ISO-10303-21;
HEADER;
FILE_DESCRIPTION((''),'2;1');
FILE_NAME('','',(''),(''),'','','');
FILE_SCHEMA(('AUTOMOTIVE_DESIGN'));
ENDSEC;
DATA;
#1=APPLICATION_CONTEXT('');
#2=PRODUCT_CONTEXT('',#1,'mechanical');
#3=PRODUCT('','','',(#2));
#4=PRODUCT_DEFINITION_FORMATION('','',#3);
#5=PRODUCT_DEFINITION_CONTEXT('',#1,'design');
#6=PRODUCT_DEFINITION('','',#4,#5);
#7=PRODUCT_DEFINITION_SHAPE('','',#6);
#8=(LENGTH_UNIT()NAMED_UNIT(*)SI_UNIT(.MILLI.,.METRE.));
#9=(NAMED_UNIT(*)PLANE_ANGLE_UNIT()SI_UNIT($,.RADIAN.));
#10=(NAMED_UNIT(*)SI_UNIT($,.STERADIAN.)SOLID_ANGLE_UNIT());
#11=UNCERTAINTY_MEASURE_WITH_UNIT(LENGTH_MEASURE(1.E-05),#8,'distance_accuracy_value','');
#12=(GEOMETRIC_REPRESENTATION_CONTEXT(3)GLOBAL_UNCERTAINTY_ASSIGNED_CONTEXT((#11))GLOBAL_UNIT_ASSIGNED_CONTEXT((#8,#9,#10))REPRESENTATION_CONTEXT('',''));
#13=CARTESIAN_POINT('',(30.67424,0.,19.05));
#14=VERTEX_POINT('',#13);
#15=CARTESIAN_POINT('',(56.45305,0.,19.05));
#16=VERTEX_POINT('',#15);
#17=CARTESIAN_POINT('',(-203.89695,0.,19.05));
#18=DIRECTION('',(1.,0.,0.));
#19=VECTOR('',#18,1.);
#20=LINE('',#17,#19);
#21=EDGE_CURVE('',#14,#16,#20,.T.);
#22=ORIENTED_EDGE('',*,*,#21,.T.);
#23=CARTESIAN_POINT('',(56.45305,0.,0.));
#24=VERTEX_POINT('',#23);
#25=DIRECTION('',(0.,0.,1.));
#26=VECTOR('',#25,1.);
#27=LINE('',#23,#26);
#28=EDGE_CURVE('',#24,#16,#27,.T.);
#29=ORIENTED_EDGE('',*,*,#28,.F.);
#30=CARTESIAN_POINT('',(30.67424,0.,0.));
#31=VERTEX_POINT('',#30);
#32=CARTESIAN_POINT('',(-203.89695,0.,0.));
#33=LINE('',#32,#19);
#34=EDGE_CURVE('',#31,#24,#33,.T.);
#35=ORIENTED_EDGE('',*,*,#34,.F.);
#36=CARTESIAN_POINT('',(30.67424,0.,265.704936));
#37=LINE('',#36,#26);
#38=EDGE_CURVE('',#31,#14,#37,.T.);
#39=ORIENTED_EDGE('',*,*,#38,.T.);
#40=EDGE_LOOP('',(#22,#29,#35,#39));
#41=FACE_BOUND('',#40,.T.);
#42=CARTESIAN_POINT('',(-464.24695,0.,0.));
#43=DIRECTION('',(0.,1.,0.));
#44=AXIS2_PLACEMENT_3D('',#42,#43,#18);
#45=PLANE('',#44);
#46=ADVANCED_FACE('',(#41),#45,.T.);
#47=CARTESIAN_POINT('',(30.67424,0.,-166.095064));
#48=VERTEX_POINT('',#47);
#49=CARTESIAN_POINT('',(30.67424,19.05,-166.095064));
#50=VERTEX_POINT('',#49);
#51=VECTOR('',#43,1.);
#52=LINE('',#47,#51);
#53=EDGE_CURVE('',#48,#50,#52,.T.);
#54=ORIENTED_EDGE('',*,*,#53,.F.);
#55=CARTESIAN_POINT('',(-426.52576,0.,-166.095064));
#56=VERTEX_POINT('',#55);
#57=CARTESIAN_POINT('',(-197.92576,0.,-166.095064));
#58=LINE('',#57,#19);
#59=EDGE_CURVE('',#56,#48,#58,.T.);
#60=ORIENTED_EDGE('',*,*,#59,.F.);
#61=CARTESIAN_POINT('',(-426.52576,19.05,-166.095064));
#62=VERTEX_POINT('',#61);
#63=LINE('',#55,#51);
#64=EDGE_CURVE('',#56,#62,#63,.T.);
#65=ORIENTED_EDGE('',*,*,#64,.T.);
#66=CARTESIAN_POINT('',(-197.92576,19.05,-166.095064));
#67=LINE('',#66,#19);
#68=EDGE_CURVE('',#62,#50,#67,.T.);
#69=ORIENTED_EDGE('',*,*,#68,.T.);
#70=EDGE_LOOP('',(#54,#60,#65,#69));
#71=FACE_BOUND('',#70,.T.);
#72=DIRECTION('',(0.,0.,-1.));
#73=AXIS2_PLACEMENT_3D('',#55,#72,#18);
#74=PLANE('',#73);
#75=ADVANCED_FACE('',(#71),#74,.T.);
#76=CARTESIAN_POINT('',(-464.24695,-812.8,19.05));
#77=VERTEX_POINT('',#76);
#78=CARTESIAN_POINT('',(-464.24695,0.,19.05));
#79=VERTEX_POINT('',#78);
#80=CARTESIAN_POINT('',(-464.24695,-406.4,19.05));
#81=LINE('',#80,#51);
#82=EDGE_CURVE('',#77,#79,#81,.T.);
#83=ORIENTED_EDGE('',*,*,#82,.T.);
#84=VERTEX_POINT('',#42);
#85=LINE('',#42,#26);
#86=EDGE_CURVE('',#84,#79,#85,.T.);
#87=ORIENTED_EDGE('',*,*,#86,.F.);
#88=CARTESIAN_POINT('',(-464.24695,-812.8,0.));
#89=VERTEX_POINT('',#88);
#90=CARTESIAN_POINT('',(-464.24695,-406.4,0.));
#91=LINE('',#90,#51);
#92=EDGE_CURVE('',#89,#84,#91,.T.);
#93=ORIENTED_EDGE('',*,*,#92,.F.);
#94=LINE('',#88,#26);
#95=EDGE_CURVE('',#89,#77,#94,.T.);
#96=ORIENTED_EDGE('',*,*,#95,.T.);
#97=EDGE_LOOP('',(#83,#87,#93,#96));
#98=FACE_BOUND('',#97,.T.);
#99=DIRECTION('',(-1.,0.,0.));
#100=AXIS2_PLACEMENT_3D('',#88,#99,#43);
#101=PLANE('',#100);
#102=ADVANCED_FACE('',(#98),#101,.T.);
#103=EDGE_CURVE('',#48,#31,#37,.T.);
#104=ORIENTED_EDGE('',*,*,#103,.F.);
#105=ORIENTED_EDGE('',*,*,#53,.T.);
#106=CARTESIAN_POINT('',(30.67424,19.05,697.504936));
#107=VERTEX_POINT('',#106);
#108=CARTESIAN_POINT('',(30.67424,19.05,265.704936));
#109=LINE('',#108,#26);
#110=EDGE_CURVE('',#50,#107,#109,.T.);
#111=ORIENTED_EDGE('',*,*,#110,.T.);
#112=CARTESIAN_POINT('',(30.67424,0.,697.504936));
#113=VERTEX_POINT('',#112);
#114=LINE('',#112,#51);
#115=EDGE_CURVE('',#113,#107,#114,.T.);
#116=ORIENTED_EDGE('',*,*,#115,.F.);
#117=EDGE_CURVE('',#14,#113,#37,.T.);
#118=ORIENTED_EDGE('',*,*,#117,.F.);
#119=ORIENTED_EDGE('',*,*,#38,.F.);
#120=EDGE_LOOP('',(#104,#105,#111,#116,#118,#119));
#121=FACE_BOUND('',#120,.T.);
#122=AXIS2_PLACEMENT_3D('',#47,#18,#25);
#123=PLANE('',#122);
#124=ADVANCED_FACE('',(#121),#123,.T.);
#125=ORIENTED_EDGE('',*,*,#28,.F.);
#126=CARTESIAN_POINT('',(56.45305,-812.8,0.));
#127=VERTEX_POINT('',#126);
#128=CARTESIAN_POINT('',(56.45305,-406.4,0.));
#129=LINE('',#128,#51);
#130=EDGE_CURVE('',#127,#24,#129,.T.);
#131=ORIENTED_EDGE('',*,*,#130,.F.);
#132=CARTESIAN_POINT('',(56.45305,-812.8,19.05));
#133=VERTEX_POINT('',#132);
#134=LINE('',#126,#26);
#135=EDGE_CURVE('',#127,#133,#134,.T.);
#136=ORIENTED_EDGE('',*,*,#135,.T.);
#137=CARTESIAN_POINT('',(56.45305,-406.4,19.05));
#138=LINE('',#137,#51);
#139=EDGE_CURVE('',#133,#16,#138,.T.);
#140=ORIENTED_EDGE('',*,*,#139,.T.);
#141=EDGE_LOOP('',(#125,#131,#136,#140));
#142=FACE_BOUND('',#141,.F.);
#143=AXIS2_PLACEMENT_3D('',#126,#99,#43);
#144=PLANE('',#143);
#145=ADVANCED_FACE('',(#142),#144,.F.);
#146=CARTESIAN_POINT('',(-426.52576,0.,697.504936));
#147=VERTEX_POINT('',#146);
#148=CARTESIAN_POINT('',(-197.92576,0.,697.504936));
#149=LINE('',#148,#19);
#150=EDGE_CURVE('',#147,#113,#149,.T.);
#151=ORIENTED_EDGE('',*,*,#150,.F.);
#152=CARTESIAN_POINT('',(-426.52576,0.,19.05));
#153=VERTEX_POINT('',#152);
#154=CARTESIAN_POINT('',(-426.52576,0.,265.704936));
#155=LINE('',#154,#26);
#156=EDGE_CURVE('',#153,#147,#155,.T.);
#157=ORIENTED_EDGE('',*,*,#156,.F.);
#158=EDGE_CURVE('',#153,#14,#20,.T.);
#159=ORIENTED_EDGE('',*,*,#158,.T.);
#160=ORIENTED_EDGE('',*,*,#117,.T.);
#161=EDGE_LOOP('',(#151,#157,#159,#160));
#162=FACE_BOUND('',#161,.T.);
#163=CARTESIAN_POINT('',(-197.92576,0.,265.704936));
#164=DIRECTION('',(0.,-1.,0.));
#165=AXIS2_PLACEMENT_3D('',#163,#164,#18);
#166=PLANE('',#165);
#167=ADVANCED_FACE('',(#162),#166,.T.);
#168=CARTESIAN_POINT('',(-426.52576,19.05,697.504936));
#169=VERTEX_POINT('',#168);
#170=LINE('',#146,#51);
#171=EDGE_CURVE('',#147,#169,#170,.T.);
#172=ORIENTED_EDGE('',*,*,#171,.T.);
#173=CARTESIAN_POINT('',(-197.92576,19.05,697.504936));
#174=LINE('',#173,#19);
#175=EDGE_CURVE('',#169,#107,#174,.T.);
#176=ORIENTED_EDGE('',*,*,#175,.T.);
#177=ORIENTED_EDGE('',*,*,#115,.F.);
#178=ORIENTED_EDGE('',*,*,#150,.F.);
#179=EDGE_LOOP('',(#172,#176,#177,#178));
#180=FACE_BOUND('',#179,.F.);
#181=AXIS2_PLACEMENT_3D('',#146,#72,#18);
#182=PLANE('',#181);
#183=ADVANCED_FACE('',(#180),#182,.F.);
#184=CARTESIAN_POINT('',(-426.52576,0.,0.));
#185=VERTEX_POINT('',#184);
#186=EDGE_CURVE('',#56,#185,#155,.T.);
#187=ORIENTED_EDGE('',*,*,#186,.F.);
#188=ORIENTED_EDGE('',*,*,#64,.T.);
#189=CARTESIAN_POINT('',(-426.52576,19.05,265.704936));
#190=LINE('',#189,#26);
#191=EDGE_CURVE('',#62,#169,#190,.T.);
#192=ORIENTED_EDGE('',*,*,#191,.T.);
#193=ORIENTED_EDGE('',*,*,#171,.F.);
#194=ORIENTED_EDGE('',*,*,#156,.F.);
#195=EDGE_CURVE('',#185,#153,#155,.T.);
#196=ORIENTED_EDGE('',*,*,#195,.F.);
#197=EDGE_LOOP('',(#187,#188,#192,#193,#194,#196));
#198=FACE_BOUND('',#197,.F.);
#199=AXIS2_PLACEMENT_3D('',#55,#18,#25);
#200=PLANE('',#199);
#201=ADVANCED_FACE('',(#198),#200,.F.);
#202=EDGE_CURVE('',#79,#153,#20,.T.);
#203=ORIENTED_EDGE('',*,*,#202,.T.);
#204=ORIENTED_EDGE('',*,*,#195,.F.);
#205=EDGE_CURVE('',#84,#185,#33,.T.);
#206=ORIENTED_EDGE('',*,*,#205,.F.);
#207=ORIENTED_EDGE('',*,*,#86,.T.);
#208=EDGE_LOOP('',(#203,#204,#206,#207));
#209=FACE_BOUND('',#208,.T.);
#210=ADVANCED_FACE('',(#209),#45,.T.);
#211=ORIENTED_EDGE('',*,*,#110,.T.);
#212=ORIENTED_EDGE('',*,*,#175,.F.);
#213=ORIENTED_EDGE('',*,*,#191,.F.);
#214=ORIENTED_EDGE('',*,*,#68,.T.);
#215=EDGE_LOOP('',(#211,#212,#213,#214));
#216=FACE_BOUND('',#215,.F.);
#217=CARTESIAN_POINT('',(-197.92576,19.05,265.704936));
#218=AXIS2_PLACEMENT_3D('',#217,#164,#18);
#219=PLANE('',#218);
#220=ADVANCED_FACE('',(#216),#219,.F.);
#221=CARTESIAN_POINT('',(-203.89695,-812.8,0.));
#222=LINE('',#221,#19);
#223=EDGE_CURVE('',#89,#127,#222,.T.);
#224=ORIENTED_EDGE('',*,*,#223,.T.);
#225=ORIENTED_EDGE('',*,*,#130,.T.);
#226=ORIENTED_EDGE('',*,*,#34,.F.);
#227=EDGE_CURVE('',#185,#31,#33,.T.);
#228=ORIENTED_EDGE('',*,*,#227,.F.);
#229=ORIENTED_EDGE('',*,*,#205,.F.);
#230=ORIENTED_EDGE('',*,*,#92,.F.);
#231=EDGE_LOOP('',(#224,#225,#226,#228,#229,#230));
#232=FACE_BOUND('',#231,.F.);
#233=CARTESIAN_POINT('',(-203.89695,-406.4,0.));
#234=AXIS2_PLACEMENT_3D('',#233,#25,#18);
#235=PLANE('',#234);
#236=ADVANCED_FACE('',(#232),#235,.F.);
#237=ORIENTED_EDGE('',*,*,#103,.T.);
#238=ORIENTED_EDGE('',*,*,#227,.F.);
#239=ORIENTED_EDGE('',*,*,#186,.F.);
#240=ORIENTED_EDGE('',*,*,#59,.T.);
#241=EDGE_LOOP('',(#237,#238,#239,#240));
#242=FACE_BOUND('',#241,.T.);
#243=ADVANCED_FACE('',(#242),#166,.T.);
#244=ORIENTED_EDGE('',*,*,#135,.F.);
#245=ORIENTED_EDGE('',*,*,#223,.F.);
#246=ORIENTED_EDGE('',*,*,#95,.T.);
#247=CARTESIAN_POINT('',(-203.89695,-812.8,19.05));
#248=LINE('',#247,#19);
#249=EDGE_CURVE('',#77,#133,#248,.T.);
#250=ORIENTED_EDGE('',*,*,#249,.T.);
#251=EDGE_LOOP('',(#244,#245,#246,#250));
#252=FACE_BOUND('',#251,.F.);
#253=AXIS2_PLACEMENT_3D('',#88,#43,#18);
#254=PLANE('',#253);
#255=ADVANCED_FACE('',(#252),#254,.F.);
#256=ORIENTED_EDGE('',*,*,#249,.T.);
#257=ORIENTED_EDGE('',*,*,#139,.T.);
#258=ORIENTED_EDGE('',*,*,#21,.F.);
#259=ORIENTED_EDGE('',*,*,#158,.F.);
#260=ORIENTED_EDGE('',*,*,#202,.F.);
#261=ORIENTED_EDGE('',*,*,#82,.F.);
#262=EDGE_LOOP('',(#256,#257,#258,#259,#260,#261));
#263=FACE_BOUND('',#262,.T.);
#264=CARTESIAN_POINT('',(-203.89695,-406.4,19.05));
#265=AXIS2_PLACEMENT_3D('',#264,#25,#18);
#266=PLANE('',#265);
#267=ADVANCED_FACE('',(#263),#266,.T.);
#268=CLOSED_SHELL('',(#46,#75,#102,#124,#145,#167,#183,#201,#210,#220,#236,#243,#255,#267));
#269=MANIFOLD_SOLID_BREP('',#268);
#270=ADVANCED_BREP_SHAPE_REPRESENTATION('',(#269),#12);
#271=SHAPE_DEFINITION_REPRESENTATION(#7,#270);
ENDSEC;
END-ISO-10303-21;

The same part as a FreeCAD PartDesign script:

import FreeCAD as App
import Part
import Sketcher

V = App.Vector
Q = App.Units.Quantity


def add_polygon(sketch, points):
    """Adds a closed chain of lines whose ends are joined by coincident constraints."""
    first, n = sketch.GeometryCount, len(points)
    for a, b in zip(points, points[1:] + points[:1]):
        sketch.addGeometry(Part.LineSegment(App.Vector(*a, 0), App.Vector(*b, 0)), False)
    for i in range(n):
        sketch.addConstraint(Sketcher.Constraint("Coincident", first + i, 2, first + (i + 1) % n, 1))

doc = App.newDocument("Part")
params = doc.addObject("Spreadsheet::Sheet", "Params")
for row, (alias, value) in enumerate([
    ("sketch1_height", "32 in"),
    ("sketch1_width", "20.5 in"),
    ("pad1_length", "0.75 in"),
    ("sketch2_width", "18 in"),
    ("sketch2_height", "34 in"),
    ("pad2_length", "0.75 in"),
], start=1):
    params.set(f"A{row}", alias)
    params.set(f"B{row}", "=" + value)
    params.setAlias(f"B{row}", alias)

body = doc.addObject("PartDesign::Body", "Body")

# Sketch on XY plane
sketch1 = doc.addObject("Sketcher::SketchObject", "Sketch")
body.addObject(sketch1)
sketch1.AttachmentSupport = (doc.XY_Plane, [""])
sketch1.MapMode = "FlatFace"
add_polygon(sketch1, [(-464, 0), (-464, -813), (56, -813), (56, 0)])  # lines 0-3
sketch1.addConstraint([
    Sketcher.Constraint("Vertical", 0),
    Sketcher.Constraint("Horizontal", 1),
    Sketcher.Constraint("Vertical", 2),
    Sketcher.Constraint("Horizontal", 3),
    Sketcher.Constraint("PointOnObject", 2, 2, -1),
    Sketcher.Constraint("DistanceY", 0, 2, 0, 1, Q("32 in")),
    Sketcher.Constraint("DistanceX", 1, 1, 1, 2, Q("20.5 in")),
    Sketcher.Constraint("DistanceX", 0, 2, -1, 1, Q("464.24695 mm")),
])
sketch1.setExpression("Constraints[9]", "Params.sketch1_height")
sketch1.setExpression("Constraints[10]", "Params.sketch1_width")
pad1 = doc.addObject("PartDesign::Pad", "Pad")
body.addObject(pad1)
pad1.Profile = sketch1
pad1.setExpression("Length", "Params.pad1_length")

# Sketch on XZ plane
sketch2 = doc.addObject("Sketcher::SketchObject", "Sketch001")
body.addObject(sketch2)
sketch2.AttachmentSupport = (doc.XZ_Plane, [""])
sketch2.MapMode = "FlatFace"
add_polygon(sketch2, [(-427, 698), (-427, -166), (31, -166), (31, 698)])  # lines 0-3
sketch2.addConstraint([
    Sketcher.Constraint("Vertical", 0),
    Sketcher.Constraint("Horizontal", 1),
    Sketcher.Constraint("Vertical", 2),
    Sketcher.Constraint("Horizontal", 3),
    Sketcher.Constraint("DistanceX", 1, 1, 1, 2, Q("18 in")),
    Sketcher.Constraint("DistanceY", 0, 2, 0, 1, Q("34 in")),
    Sketcher.Constraint("DistanceX", 0, 2, -1, 1, Q("426.52576 mm")),
    Sketcher.Constraint("DistanceY", 0, 2, -1, 1, Q("166.095064 mm")),
])
sketch2.setExpression("Constraints[8]", "Params.sketch2_width")
sketch2.setExpression("Constraints[9]", "Params.sketch2_height")
pad2 = doc.addObject("PartDesign::Pad", "Pad001")
body.addObject(pad2)
pad2.Profile = sketch2
pad2.setExpression("Length", "Params.pad2_length")
pad2.Reversed = True

doc.recompute()
